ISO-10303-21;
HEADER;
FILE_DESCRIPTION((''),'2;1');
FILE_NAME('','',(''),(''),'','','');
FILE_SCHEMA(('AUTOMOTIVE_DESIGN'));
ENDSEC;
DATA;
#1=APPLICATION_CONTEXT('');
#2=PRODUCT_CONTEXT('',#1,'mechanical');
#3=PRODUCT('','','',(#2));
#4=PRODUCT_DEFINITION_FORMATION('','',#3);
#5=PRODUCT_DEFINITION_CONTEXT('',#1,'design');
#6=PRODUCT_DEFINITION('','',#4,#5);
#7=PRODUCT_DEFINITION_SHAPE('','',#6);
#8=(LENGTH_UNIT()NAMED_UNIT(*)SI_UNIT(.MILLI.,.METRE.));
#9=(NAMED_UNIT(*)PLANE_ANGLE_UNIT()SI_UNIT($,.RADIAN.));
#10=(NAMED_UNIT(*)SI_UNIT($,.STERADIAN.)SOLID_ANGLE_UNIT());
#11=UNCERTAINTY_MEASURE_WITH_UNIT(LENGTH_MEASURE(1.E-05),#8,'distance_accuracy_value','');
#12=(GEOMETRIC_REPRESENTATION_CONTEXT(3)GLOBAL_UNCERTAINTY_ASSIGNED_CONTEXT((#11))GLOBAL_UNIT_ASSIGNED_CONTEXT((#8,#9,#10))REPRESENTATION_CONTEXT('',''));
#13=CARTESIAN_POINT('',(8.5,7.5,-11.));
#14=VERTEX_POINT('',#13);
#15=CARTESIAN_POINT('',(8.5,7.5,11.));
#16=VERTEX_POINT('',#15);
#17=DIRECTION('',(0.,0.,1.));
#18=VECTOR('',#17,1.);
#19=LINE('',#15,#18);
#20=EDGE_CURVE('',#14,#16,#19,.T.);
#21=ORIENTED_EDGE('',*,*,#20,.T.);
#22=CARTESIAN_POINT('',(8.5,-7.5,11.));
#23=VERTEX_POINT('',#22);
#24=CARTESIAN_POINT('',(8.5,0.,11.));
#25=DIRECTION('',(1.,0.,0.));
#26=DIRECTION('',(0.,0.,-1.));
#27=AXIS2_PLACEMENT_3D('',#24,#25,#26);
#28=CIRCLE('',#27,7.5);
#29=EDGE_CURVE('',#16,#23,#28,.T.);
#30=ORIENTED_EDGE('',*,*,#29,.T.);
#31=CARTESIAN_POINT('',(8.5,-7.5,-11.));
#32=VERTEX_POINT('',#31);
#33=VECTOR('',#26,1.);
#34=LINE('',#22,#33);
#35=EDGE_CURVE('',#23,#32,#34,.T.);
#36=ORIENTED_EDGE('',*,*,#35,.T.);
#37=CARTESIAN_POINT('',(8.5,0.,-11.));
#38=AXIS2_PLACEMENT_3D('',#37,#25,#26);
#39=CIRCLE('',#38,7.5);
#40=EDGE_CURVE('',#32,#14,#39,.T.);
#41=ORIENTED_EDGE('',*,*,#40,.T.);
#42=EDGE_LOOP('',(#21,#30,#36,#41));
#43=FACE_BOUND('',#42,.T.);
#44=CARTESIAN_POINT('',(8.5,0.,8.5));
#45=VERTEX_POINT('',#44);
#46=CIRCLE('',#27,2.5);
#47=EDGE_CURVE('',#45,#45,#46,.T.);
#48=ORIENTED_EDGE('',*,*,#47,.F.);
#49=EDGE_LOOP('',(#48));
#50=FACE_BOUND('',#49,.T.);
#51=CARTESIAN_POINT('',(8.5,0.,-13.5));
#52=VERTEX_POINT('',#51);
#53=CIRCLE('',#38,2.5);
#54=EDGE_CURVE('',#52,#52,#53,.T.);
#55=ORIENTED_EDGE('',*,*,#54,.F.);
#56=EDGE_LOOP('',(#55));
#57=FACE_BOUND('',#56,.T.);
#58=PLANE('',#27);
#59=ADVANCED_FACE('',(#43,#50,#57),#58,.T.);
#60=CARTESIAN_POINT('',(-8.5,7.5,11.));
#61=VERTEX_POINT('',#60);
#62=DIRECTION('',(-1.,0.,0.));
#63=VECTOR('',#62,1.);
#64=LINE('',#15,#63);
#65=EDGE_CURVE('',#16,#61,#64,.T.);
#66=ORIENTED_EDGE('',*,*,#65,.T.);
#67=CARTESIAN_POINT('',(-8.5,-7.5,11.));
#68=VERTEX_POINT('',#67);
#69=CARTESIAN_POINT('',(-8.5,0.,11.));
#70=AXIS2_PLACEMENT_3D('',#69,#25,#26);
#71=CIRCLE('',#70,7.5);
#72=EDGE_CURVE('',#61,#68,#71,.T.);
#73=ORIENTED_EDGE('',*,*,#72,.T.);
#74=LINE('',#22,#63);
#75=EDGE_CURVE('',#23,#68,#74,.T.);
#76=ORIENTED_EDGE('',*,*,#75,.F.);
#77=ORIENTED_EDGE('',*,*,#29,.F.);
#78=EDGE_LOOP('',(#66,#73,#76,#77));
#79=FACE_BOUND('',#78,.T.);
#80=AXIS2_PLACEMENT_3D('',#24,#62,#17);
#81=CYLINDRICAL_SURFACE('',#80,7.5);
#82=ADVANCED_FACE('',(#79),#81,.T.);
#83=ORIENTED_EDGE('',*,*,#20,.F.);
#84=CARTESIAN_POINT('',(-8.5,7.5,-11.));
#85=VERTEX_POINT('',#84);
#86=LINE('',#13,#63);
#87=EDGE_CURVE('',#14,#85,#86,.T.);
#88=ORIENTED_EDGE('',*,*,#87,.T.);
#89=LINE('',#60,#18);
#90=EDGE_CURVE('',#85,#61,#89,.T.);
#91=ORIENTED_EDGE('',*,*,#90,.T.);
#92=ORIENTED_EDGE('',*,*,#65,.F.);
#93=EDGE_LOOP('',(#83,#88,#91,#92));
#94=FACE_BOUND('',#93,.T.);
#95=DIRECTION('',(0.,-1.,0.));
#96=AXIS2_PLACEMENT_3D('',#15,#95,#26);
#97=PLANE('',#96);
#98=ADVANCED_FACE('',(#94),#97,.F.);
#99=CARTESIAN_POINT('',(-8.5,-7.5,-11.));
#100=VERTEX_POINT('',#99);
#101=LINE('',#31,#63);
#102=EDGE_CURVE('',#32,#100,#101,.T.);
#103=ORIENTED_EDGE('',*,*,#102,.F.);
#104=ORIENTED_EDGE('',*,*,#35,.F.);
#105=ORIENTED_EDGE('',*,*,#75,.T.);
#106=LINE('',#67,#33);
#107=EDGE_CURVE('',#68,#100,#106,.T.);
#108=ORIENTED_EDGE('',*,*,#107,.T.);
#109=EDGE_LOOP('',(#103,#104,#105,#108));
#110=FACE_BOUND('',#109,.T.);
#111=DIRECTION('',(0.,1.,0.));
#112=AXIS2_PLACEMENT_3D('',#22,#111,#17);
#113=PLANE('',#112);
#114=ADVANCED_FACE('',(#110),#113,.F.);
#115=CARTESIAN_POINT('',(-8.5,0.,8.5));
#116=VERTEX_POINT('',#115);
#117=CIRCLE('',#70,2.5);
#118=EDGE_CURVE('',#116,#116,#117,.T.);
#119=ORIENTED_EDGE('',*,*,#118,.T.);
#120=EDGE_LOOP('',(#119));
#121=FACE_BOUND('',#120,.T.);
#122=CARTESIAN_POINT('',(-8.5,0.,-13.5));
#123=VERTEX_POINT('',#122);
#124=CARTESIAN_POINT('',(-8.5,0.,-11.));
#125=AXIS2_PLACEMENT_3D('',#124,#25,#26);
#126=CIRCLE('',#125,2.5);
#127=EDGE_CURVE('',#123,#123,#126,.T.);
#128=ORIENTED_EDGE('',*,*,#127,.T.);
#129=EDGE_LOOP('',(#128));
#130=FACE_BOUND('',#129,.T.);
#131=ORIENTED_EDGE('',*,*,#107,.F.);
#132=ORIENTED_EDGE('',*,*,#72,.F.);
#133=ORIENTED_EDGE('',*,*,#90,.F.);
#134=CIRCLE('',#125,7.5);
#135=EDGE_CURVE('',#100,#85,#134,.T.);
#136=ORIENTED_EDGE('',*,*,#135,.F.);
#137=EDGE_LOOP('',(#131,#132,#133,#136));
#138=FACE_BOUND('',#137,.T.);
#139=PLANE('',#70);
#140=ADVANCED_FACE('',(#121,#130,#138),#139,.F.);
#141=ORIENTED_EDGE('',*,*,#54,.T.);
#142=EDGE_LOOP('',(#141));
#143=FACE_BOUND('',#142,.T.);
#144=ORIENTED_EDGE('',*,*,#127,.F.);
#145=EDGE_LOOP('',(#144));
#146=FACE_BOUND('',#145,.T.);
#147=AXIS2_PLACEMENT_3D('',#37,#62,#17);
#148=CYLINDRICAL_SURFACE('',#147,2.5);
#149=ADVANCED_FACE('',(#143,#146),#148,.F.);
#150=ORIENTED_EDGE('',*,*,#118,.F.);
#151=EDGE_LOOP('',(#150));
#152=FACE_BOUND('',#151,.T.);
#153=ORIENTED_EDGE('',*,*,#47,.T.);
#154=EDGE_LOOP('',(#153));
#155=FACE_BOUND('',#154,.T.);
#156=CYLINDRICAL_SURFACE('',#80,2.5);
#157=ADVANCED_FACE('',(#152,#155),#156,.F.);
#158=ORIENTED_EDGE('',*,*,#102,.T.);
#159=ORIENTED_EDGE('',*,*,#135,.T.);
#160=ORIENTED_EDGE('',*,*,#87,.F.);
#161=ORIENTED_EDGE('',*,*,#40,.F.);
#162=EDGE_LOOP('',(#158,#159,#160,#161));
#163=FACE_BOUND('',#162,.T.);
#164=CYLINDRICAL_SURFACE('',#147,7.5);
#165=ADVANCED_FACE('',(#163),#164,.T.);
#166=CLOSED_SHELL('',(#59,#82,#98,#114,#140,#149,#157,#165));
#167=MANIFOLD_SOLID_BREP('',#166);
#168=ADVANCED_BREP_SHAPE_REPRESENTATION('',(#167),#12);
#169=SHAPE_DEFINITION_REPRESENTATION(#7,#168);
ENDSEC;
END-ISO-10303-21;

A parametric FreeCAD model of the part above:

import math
import FreeCAD as App
import Part
import Sketcher
from FreeCAD import Vector
Q = App.Units.Quantity

doc = App.newDocument("Part")
body = doc.addObject("PartDesign::Body", "Body")

# Sketch on YZ plane
sketch1 = body.newObject("Sketcher::SketchObject", "Sketch")
sketch1.AttachmentSupport = (doc.getObject("YZ_Plane"), [""])
sketch1.MapMode = "FlatFace"
sketch1.addGeometry([
    Part.LineSegment(Vector(7.5, -11, 0), Vector(7.5, 11, 0)),  # 0
    Part.ArcOfCircle(Part.Circle(Vector(0, 11, 0), Vector(0, 0, 1), 7.5), math.radians(0), math.radians(180)),  # 1
    Part.LineSegment(Vector(-7.5, 11, 0), Vector(-7.5, -11, 0)),  # 2
    Part.ArcOfCircle(Part.Circle(Vector(0, -11, 0), Vector(0, 0, 1), 7.5), math.radians(180), math.radians(360)),  # 3
    Part.Circle(Vector(0, -11, 0), Vector(0, 0, 1), 2.5),  # 4
    Part.Circle(Vector(0, 11, 0), Vector(0, 0, 1), 2.5),  # 5
], False)
sketch1.addConstraint([
    Sketcher.Constraint("Tangent", 0, 2, 1, 1),
    Sketcher.Constraint("Tangent", 1, 2, 2, 1),
    Sketcher.Constraint("Tangent", 2, 2, 3, 1),
    Sketcher.Constraint("Tangent", 3, 2, 0, 1),
    Sketcher.Constraint("Vertical", 0),
    Sketcher.Constraint("Vertical", 2),
    Sketcher.Constraint("Coincident", 4, 3, 3, 3),
    Sketcher.Constraint("Coincident", 5, 3, 1, 3),
    Sketcher.Constraint("Equal", 4, 5),
    Sketcher.Constraint("Symmetric", 1, 3, 3, 3, -1, 1),
    Sketcher.Constraint("Diameter", 4, Q("5 mm")),
    Sketcher.Constraint("Radius", 1, Q("7.5 mm")),
    Sketcher.Constraint("DistanceY", 0, 1, 0, 2, Q("22 mm")),
])
pad1 = body.newObject("PartDesign::Pad", "Pad")
pad1.Profile = sketch1
pad1.Length = 17
pad1.Midplane = True

doc.recompute()
